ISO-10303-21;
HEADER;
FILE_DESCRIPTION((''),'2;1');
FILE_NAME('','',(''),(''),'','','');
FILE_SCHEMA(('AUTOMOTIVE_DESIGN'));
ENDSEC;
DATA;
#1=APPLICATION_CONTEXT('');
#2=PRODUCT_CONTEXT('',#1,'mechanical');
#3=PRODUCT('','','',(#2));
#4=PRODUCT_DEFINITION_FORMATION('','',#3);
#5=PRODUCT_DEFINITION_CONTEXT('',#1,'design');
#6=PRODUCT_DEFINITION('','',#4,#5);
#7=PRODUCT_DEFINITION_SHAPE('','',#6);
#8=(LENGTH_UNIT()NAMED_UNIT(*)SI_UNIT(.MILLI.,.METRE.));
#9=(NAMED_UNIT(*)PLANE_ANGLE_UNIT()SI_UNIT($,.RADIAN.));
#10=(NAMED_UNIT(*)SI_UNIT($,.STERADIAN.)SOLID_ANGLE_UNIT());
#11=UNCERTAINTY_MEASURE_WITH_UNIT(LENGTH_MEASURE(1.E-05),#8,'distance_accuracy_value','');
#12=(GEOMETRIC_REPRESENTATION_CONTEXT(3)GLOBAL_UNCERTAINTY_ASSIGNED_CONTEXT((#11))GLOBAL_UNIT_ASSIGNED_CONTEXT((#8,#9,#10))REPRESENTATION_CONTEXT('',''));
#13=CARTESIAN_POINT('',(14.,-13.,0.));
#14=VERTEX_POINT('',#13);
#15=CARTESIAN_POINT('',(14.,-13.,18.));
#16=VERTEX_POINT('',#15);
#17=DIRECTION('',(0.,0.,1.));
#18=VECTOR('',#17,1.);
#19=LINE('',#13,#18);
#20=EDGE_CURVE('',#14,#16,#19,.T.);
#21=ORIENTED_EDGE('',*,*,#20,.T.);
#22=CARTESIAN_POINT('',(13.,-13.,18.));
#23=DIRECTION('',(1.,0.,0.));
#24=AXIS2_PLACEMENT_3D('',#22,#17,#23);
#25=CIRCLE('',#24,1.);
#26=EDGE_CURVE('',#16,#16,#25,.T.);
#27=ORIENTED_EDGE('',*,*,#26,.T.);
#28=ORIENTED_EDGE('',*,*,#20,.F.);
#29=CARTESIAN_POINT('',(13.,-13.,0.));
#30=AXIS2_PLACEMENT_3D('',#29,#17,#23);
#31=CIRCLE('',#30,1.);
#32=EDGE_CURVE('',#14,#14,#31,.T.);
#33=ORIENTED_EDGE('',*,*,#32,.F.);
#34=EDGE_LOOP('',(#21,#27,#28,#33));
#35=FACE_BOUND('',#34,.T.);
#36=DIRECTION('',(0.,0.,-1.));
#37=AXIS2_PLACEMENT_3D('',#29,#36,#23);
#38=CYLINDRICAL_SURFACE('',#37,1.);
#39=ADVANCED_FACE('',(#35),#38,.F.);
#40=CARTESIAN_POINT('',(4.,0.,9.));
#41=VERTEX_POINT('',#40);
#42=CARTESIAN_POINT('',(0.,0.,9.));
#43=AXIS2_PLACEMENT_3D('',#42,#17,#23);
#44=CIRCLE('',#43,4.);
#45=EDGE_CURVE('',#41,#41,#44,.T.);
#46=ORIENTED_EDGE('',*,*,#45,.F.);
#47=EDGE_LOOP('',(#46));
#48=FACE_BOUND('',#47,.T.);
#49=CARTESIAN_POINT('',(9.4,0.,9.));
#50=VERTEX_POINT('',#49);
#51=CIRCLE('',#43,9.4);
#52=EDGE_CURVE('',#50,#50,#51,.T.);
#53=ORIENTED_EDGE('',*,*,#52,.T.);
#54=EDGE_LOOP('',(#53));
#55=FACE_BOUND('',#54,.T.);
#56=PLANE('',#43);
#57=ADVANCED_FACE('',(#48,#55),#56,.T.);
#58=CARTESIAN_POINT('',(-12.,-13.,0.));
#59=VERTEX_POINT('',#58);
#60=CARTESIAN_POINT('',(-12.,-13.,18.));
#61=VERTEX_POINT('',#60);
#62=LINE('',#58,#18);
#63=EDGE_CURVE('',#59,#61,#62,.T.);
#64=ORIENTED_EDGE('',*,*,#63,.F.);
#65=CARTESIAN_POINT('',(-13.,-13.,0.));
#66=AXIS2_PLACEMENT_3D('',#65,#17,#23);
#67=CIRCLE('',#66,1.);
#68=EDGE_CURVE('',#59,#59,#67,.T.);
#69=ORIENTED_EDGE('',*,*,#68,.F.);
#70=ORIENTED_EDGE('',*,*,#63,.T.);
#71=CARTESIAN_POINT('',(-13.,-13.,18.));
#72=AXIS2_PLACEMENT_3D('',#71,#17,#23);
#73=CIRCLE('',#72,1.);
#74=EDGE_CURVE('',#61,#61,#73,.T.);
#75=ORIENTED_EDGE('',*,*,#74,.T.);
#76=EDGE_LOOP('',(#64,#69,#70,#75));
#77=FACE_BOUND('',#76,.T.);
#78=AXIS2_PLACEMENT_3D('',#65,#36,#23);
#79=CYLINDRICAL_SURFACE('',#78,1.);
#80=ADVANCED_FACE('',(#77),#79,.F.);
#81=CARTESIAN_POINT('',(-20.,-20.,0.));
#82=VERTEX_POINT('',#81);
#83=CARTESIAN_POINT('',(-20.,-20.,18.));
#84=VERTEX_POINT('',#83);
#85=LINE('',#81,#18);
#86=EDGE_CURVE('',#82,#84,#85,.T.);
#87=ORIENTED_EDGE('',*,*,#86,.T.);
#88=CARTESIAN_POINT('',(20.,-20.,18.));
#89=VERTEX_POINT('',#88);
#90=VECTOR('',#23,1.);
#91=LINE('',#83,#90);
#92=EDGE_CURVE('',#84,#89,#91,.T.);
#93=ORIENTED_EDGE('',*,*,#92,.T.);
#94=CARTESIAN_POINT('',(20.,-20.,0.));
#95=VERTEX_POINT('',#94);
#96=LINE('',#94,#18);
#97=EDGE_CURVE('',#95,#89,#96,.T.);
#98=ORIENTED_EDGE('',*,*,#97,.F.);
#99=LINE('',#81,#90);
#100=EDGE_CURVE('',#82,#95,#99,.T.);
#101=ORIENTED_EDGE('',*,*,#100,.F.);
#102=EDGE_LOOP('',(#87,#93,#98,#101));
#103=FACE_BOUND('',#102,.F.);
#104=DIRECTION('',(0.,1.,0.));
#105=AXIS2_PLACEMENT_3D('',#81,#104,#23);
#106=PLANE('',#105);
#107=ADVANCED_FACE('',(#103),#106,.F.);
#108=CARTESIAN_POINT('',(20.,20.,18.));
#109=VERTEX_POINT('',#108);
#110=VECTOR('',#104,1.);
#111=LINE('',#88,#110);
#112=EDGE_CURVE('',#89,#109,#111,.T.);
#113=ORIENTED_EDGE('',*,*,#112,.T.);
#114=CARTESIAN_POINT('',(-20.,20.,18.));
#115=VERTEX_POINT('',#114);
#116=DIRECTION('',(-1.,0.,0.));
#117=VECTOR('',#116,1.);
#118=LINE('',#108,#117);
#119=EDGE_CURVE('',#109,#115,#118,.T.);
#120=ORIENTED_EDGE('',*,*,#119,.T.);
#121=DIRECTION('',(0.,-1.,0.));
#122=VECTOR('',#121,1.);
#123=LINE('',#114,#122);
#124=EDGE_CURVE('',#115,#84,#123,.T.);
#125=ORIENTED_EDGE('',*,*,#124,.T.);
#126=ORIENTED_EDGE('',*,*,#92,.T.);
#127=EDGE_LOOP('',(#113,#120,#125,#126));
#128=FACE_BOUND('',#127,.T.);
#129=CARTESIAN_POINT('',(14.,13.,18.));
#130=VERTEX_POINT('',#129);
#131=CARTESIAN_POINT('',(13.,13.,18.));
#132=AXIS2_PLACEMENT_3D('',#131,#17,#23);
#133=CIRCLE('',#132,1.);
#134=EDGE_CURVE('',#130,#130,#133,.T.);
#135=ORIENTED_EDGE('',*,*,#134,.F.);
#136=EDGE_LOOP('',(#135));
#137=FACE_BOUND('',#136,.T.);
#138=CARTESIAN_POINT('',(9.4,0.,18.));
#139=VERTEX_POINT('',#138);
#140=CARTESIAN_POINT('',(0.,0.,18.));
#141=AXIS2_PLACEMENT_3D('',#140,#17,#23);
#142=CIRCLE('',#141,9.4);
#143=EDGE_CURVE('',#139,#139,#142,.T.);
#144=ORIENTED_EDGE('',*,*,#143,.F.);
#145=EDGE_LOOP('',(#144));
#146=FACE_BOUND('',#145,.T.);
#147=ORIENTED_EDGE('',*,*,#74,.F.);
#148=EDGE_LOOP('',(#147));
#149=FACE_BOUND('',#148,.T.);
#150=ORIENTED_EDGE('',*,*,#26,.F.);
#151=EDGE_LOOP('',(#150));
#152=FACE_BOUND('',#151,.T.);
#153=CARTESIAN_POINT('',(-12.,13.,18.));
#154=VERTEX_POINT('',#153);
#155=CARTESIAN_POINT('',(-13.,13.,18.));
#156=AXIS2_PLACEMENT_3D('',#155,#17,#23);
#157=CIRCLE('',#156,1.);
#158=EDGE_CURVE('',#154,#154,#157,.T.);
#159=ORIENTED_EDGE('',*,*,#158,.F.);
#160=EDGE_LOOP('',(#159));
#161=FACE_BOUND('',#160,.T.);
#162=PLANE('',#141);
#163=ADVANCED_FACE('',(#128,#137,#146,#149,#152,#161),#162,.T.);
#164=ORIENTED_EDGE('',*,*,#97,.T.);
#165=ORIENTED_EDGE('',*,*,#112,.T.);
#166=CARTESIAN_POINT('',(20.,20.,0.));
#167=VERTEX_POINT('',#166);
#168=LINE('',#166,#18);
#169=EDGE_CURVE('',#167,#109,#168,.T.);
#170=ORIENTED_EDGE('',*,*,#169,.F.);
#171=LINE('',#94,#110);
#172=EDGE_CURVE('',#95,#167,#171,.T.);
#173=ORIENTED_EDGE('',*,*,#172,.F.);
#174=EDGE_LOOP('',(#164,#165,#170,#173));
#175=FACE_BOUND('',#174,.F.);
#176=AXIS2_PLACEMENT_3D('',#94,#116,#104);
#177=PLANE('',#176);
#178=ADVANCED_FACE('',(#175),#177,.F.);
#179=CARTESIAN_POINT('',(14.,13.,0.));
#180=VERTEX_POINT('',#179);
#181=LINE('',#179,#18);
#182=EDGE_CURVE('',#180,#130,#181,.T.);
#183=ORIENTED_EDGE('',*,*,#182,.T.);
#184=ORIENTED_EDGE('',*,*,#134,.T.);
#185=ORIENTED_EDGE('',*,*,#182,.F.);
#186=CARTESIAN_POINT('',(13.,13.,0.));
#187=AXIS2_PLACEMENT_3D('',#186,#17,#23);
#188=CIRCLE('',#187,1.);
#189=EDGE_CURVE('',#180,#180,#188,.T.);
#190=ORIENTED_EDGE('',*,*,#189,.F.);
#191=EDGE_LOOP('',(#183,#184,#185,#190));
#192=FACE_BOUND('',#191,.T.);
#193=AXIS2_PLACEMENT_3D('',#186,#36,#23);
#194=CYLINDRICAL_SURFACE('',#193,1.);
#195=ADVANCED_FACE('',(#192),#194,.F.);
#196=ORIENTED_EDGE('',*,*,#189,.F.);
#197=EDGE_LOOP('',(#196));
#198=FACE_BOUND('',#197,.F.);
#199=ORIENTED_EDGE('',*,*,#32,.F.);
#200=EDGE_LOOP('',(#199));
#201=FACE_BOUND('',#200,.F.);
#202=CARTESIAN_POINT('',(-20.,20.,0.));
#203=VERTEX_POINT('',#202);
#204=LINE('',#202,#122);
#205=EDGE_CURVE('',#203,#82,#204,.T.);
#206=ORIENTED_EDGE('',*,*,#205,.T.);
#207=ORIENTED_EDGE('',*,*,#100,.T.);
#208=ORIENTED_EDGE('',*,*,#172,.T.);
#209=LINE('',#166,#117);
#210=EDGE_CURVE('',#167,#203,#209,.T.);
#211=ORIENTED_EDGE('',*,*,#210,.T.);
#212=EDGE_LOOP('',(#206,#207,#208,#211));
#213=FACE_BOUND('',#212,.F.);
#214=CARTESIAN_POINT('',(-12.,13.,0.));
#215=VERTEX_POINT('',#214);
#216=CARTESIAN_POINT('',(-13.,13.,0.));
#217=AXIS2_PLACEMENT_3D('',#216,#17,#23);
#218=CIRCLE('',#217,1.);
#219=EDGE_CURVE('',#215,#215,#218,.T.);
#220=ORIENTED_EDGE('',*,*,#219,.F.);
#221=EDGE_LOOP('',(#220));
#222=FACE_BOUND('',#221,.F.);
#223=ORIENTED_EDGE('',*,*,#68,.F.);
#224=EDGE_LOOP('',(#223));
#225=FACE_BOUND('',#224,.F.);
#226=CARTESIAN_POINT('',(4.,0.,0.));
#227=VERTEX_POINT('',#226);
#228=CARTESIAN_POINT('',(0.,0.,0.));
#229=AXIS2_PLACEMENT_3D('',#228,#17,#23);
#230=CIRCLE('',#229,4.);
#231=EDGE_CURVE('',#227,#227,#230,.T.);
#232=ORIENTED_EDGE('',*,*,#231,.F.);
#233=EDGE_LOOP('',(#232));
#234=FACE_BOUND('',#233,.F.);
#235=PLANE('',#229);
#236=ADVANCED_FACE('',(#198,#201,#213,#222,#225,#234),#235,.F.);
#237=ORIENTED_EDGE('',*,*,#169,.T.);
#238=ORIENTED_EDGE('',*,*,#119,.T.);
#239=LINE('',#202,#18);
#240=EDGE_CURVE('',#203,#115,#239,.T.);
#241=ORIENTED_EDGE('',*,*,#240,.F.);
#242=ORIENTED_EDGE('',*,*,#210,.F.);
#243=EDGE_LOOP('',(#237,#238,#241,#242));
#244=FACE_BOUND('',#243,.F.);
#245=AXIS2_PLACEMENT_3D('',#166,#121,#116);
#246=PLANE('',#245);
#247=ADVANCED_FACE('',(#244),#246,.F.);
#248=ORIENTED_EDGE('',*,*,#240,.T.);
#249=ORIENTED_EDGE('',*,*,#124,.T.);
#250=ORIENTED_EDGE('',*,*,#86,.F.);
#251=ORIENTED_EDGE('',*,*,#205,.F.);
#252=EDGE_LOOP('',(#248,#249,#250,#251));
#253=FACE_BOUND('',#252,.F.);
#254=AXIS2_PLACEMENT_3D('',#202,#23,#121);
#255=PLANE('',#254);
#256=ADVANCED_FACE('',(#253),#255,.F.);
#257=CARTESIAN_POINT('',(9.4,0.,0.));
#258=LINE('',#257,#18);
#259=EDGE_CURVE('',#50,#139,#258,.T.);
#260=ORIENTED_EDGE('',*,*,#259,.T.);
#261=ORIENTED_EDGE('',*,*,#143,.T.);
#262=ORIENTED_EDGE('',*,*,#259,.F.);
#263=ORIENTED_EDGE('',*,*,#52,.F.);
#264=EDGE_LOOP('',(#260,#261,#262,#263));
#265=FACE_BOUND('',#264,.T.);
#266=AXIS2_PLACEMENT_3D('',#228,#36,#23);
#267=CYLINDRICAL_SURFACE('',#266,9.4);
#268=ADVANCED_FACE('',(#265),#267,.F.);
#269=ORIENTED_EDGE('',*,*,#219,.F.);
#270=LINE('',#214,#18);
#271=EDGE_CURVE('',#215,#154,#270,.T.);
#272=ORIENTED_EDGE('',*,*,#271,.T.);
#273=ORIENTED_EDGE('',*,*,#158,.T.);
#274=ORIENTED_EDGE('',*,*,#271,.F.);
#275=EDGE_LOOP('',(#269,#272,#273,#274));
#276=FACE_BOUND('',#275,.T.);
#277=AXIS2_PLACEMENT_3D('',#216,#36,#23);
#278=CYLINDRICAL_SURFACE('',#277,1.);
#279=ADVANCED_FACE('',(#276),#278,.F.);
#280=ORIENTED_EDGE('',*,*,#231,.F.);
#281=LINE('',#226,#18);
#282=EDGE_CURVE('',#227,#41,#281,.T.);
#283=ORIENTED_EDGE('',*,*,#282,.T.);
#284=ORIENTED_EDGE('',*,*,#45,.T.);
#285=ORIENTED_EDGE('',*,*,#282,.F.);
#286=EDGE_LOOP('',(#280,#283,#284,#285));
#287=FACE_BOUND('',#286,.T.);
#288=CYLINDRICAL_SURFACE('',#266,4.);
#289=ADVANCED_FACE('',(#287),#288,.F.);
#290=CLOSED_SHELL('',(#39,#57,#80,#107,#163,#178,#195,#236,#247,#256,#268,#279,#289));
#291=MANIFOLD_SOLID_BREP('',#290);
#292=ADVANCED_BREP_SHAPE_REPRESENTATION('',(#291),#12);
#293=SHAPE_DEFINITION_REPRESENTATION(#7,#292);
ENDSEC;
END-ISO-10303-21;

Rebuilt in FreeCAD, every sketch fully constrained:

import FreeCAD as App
import Part
import Sketcher
from FreeCAD import Vector

doc = App.newDocument("Part")
body = doc.addObject("PartDesign::Body", "Body")

# Sketch on XY plane
sketch1 = body.newObject("Sketcher::SketchObject", "Sketch")
sketch1.AttachmentSupport = (doc.getObject("XY_Plane"), [""])
sketch1.MapMode = "FlatFace"
sketch1.addGeometry([
    Part.Circle(Vector(0, 0, 0), Vector(0, 0, 1), 9.4),
    Part.Circle(Vector(0, 0, 0), Vector(0, 0, 1), 4),
], False)
sketch1.addConstraint([
    Sketcher.Constraint("Coincident", 0, 3, -1, 1),
    Sketcher.Constraint("Coincident", 1, 3, -1, 1),
    Sketcher.Constraint("Diameter", 1, 8.0),
    Sketcher.Constraint("Diameter", 0, 18.8),
])
pad1 = body.newObject("PartDesign::Pad", "Pad")
pad1.Profile = sketch1
pad1.Length = 9

# Sketch on XY plane
sketch2 = body.newObject("Sketcher::SketchObject", "Sketch001")
sketch2.AttachmentSupport = (doc.getObject("XY_Plane"), [""])
sketch2.MapMode = "FlatFace"
sketch2.addGeometry([
    Part.LineSegment(Vector(20, -20, 0), Vector(20, 20, 0)),  # 0
    Part.LineSegment(Vector(20, 20, 0), Vector(-20, 20, 0)),  # 1
    Part.LineSegment(Vector(-20, 20, 0), Vector(-20, -20, 0)),  # 2
    Part.LineSegment(Vector(-20, -20, 0), Vector(20, -20, 0)),  # 3
    Part.Circle(Vector(-13, -13, 0), Vector(0, 0, 1), 1),  # 4
    Part.Circle(Vector(13, -13, 0), Vector(0, 0, 1), 1),  # 5
    Part.Circle(Vector(-13, 13, 0), Vector(0, 0, 1), 1),  # 6
    Part.Circle(Vector(0, 0, 0), Vector(0, 0, 1), 9.4),  # 7
    Part.Circle(Vector(13, 13, 0), Vector(0, 0, 1), 1),  # 8
], False)
sketch2.addConstraint([
    Sketcher.Constraint("Coincident", 0, 2, 1, 1),
    Sketcher.Constraint("Coincident", 1, 2, 2, 1),
    Sketcher.Constraint("Coincident", 2, 2, 3, 1),
    Sketcher.Constraint("Coincident", 3, 2, 0, 1),
    Sketcher.Constraint("Vertical", 0),
    Sketcher.Constraint("Horizontal", 1),
    Sketcher.Constraint("Vertical", 2),
    Sketcher.Constraint("Horizontal", 3),
    Sketcher.Constraint("Coincident", 7, 3, -1, 1),
    Sketcher.Constraint("Equal", 4, 5),
    Sketcher.Constraint("Equal", 5, 6),
    Sketcher.Constraint("Equal", 6, 8),
    Sketcher.Constraint("Symmetric", 5, 3, 6, 3, -1, 1),
    Sketcher.Constraint("Symmetric", 4, 3, 8, 3, -1, 1),
    Sketcher.Constraint("Symmetric", 0, 2, 2, 2, -1, 1),
    Sketcher.Constraint("Symmetric", 4, 3, 5, 3, -2),
    Sketcher.Constraint("Equal", 3, 0),
    Sketcher.Constraint("Diameter", 4, 2.0),
    Sketcher.Constraint("Diameter", 7, 18.8),
    Sketcher.Constraint("DistanceX", 1, 2, 1, 1, 40.0),
    Sketcher.Constraint("DistanceX", 4, 3, 5, 3, 26.0),
    Sketcher.Constraint("DistanceY", 4, 3, 6, 3, 26.0),
])
pad2 = body.newObject("PartDesign::Pad", "Pad001")
pad2.Profile = sketch2
pad2.Length = 18

doc.recompute()
